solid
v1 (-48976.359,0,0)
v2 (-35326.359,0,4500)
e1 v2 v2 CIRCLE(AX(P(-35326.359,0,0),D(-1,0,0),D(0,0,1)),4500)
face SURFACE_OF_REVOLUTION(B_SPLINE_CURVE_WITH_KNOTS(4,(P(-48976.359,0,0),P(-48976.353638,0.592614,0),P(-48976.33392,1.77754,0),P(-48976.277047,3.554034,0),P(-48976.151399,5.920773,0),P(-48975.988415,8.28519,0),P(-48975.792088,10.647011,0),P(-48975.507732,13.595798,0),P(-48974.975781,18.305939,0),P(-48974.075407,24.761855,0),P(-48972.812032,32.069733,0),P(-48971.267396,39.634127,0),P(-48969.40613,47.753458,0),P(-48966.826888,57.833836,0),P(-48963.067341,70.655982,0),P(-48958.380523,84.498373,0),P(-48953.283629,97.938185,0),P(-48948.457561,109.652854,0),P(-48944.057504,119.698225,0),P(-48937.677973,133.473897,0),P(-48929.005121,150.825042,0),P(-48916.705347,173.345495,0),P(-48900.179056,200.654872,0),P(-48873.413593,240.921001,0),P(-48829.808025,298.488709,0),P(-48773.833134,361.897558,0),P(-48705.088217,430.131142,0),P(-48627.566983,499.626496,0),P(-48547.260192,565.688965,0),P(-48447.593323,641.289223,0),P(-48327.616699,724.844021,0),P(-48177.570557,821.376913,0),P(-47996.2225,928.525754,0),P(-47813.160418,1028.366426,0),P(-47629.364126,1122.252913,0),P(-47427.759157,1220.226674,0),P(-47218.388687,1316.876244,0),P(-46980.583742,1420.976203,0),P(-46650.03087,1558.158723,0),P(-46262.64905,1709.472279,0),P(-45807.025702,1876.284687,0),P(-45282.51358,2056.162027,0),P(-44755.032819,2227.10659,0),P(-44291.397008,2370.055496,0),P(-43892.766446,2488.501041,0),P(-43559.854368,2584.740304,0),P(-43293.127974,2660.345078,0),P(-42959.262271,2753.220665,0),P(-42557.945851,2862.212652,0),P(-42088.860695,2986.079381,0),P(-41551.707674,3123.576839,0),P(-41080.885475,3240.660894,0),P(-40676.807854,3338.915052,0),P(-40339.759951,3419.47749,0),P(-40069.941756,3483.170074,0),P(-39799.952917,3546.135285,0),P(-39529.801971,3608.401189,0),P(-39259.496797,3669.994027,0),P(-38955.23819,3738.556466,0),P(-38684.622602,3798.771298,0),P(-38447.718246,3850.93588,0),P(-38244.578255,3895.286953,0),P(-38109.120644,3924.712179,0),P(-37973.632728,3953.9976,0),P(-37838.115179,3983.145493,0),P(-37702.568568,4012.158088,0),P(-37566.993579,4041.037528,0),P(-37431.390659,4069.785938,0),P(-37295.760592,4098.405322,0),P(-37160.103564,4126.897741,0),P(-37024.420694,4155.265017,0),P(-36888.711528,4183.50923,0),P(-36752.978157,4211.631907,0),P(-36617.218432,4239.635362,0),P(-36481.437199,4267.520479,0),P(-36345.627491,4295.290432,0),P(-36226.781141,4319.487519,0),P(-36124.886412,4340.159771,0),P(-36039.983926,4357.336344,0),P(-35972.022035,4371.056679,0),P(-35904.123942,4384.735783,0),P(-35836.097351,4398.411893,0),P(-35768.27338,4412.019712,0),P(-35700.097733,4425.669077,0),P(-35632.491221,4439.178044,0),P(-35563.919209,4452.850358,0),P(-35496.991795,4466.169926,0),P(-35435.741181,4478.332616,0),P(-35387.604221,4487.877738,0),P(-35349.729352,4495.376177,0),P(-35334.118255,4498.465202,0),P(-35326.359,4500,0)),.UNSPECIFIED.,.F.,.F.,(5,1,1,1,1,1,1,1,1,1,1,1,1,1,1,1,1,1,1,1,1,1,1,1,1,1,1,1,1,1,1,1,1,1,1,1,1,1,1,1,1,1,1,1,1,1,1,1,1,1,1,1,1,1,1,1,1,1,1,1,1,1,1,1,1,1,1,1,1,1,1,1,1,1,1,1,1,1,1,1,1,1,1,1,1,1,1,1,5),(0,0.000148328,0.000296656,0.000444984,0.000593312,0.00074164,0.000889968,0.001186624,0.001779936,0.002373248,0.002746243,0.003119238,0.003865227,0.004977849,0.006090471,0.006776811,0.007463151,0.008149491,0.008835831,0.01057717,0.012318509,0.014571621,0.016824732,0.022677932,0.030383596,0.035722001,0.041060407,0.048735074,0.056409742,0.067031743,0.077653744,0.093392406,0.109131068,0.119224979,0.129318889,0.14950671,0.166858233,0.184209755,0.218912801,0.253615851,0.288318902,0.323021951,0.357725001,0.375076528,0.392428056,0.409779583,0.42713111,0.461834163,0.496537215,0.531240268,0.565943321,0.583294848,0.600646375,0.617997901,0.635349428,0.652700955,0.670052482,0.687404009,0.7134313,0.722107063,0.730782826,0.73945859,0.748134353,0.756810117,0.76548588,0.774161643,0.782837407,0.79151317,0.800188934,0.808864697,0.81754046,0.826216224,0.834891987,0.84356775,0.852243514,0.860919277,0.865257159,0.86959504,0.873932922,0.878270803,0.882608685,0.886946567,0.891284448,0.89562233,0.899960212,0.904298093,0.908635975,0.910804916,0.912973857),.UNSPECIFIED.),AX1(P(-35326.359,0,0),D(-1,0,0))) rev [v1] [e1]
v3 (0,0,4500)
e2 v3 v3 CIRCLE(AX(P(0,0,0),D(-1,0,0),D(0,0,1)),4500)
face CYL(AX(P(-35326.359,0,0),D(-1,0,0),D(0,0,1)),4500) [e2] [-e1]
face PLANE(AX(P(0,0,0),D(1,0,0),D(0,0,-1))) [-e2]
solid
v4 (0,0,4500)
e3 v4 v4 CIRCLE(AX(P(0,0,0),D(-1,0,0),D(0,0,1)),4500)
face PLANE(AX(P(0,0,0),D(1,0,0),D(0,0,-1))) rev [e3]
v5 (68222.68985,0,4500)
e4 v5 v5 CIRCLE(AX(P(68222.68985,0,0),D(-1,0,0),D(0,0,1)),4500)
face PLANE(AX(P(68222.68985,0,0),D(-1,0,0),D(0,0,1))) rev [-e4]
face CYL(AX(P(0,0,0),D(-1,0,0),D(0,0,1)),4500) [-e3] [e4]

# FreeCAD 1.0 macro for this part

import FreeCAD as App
import Part
import Sketcher

V = App.Vector

doc = App.newDocument("Part")
params = doc.addObject("Spreadsheet::Sheet", "Params")
for row, (alias, value) in enumerate([
    ("revolution_angle", "360 deg"),
    ("sketch2_height", "4500 mm"),
    ("revolution2_angle", "360 deg"),
], start=1):
    params.set(f"A{row}", alias)
    params.set(f"B{row}", "=" + value)
    params.setAlias(f"B{row}", alias)

body = doc.addObject("PartDesign::Body", "Body")

# Sketch on XY plane
sketch1 = body.newObject("Sketcher::SketchObject", "Sketch")
sketch1.AttachmentSupport = (doc.getObject("XY_Plane"), [""])
sketch1.MapMode = "FlatFace"
sketch1.addGeometry(Part.BSplineCurve([V(-48976.359, 0, 0), V(-48976.353638, 0.592614, 0), V(-48976.33392, 1.77754, 0), V(-48976.277047, 3.554034, 0), V(-48976.151399, 5.920773, 0), V(-48975.988415, 8.28519, 0), V(-48975.792088, 10.647011, 0), V(-48975.507732, 13.595798, 0), V(-48974.975781, 18.305939, 0), V(-48974.075407, 24.761855, 0), V(-48972.812032, 32.069733, 0), V(-48971.267396, 39.634127, 0), V(-48969.40613, 47.753458, 0), V(-48966.826888, 57.833836, 0), V(-48963.067341, 70.655982, 0), V(-48958.380523, 84.498373, 0), V(-48953.283629, 97.938185, 0), V(-48948.457561, 109.652854, 0), V(-48944.057504, 119.698225, 0), V(-48937.677973, 133.473897, 0), V(-48929.005121, 150.825042, 0), V(-48916.705347, 173.345495, 0), V(-48900.179056, 200.654872, 0), V(-48873.413593, 240.921001, 0), V(-48829.808025, 298.488709, 0), V(-48773.833134, 361.897558, 0), V(-48705.088217, 430.131142, 0), V(-48627.566983, 499.626496, 0), V(-48547.260192, 565.688965, 0), V(-48447.593323, 641.289223, 0), V(-48327.616699, 724.844021, 0), V(-48177.570557, 821.376913, 0), V(-47996.2225, 928.525754, 0), V(-47813.160418, 1028.366426, 0), V(-47629.364126, 1122.252913, 0), V(-47427.759157, 1220.226674, 0), V(-47218.388687, 1316.876244, 0), V(-46980.583742, 1420.976203, 0), V(-46650.03087, 1558.158723, 0), V(-46262.64905, 1709.472279, 0), V(-45807.025702, 1876.284687, 0), V(-45282.51358, 2056.162027, 0), V(-44755.032819, 2227.10659, 0), V(-44291.397008, 2370.055496, 0), V(-43892.766446, 2488.501041, 0), V(-43559.854368, 2584.740304, 0), V(-43293.127974, 2660.345078, 0), V(-42959.262271, 2753.220665, 0), V(-42557.945851, 2862.212652, 0), V(-42088.860695, 2986.079381, 0), V(-41551.707674, 3123.576839, 0), V(-41080.885475, 3240.660894, 0), V(-40676.807854, 3338.915052, 0), V(-40339.759951, 3419.47749, 0), V(-40069.941756, 3483.170074, 0), V(-39799.952917, 3546.135285, 0), V(-39529.801971, 3608.401189, 0), V(-39259.496797, 3669.994027, 0), V(-38955.23819, 3738.556466, 0), V(-38684.622602, 3798.771298, 0), V(-38447.718246, 3850.93588, 0), V(-38244.578255, 3895.286953, 0), V(-38109.120644, 3924.712179, 0), V(-37973.632728, 3953.9976, 0), V(-37838.115179, 3983.145493, 0), V(-37702.568568, 4012.158088, 0), V(-37566.993579, 4041.037528, 0), V(-37431.390659, 4069.785938, 0), V(-37295.760592, 4098.405322, 0), V(-37160.103564, 4126.897741, 0), V(-37024.420694, 4155.265017, 0), V(-36888.711528, 4183.50923, 0), V(-36752.978157, 4211.631907, 0), V(-36617.218432, 4239.635362, 0), V(-36481.437199, 4267.520479, 0), V(-36345.627491, 4295.290432, 0), V(-36226.781141, 4319.487519, 0), V(-36124.886412, 4340.159771, 0), V(-36039.983926, 4357.336344, 0), V(-35972.022035, 4371.056679, 0), V(-35904.123942, 4384.735783, 0), V(-35836.097351, 4398.411893, 0), V(-35768.27338, 4412.019712, 0), V(-35700.097733, 4425.669077, 0), V(-35632.491221, 4439.178044, 0), V(-35563.919209, 4452.850358, 0), V(-35496.991795, 4466.169926, 0), V(-35435.741181, 4478.332616, 0), V(-35387.604221, 4487.877738, 0), V(-35349.729352, 4495.376177, 0), V(-35334.118255, 4498.465202, 0), V(-35326.359, 4500, 0)], [5, 1, 1, 1, 1, 1, 1, 1, 1, 1, 1, 1, 1, 1, 1, 1, 1, 1, 1, 1, 1, 1, 1, 1, 1, 1, 1, 1, 1, 1, 1, 1, 1, 1, 1, 1, 1, 1, 1, 1, 1, 1, 1, 1, 1, 1, 1, 1, 1, 1, 1, 1, 1, 1, 1, 1, 1, 1, 1, 1, 1, 1, 1, 1, 1, 1, 1, 1, 1, 1, 1, 1, 1, 1, 1, 1, 1, 1, 1, 1, 1, 1, 1, 1, 1, 1, 1, 1, 5], [0, 0.000148328, 0.000296656, 0.000444984, 0.000593312, 0.00074164, 0.000889968, 0.001186624, 0.001779936, 0.002373248, 0.002746243, 0.003119238, 0.003865227, 0.004977849, 0.006090471, 0.006776811, 0.007463151, 0.008149491, 0.008835831, 0.01057717, 0.012318509, 0.014571621, 0.016824732, 0.022677932, 0.030383596, 0.035722001, 0.041060407, 0.048735074, 0.056409742, 0.067031743, 0.077653744, 0.093392406, 0.109131068, 0.119224979, 0.129318889, 0.14950671, 0.166858233, 0.184209755, 0.218912801, 0.253615851, 0.288318902, 0.323021951, 0.357725001, 0.375076528, 0.392428056, 0.409779583, 0.42713111, 0.461834163, 0.496537215, 0.531240268, 0.565943321, 0.583294848, 0.600646375, 0.617997901, 0.635349428, 0.652700955, 0.670052482, 0.687404009, 0.7134313, 0.722107063, 0.730782826, 0.73945859, 0.748134353, 0.756810117, 0.76548588, 0.774161643, 0.782837407, 0.79151317, 0.800188934, 0.808864697, 0.81754046, 0.826216224, 0.834891987, 0.84356775, 0.852243514, 0.860919277, 0.865257159, 0.86959504, 0.873932922, 0.878270803, 0.882608685, 0.886946567, 0.891284448, 0.89562233, 0.899960212, 0.904298093, 0.908635975, 0.910804916, 0.912973857], False, 4, [1, 1, 1, 1, 1, 1, 1, 1, 1, 1, 1, 1, 1, 1, 1, 1, 1, 1, 1, 1, 1, 1, 1, 1, 1, 1, 1, 1, 1, 1, 1, 1, 1, 1, 1, 1, 1, 1, 1, 1, 1, 1, 1, 1, 1, 1, 1, 1, 1, 1, 1, 1, 1, 1, 1, 1, 1, 1, 1, 1, 1, 1, 1, 1, 1, 1, 1, 1, 1, 1, 1, 1, 1, 1, 1, 1, 1, 1, 1, 1, 1, 1, 1, 1, 1, 1, 1, 1, 1, 1, 1, 1], False), False)
sketch1.addGeometry(Part.LineSegment(V(-48976.359, 0, 0), V(0, 0, 0)), False)
sketch1.addGeometry(Part.LineSegment(V(0, 0, 0), V(0, 4500, 0)), False)
sketch1.addGeometry(Part.LineSegment(V(0, 4500, 0), V(-35326.359, 4500, 0)), False)
sketch1.addConstraint(Sketcher.Constraint("Block", 0))
sketch1.addConstraint(Sketcher.Constraint("Coincident", 0, 1, 1, 1))
sketch1.addConstraint(Sketcher.Constraint("Coincident", 1, 2, 2, 1))
sketch1.addConstraint(Sketcher.Constraint("Coincident", 2, 2, 3, 1))
sketch1.addConstraint(Sketcher.Constraint("Coincident", 3, 2, 0, 2))
sketch1.addConstraint(Sketcher.Constraint("Horizontal", 1))
sketch1.addConstraint(Sketcher.Constraint("Vertical", 2))
sketch1.addConstraint(Sketcher.Constraint("Horizontal", 3))
sketch1.addConstraint(Sketcher.Constraint("PointOnObject", 2, 2, -2))
revolution = body.newObject("PartDesign::Revolution", "Revolution")
revolution.Profile = sketch1
revolution.ReferenceAxis = (sketch1, ["H_Axis"])
revolution.setExpression("Angle", "Params.revolution_angle")
body2 = doc.addObject("PartDesign::Body", "Body001")

# Sketch on XY plane
sketch2 = body2.newObject("Sketcher::SketchObject", "Sketch001")
sketch2.AttachmentSupport = (doc.getObject("XY_Plane001"), [""])
sketch2.MapMode = "FlatFace"
sketch2.addGeometry(Part.LineSegment(V(0, 4500, 0), V(0, 0, 0)), False)
sketch2.addGeometry(Part.LineSegment(V(0, 0, 0), V(68223, 0, 0)), False)
sketch2.addGeometry(Part.LineSegment(V(68223, 0, 0), V(68223, 4500, 0)), False)
sketch2.addGeometry(Part.LineSegment(V(68223, 4500, 0), V(0, 4500, 0)), False)
sketch2.addConstraint(Sketcher.Constraint("Coincident", 0, 2, 1, 1))
sketch2.addConstraint(Sketcher.Constraint("Coincident", 1, 2, 2, 1))
sketch2.addConstraint(Sketcher.Constraint("Coincident", 2, 2, 3, 1))
sketch2.addConstraint(Sketcher.Constraint("Coincident", 3, 2, 0, 1))
sketch2.addConstraint(Sketcher.Constraint("Vertical", 0))
sketch2.addConstraint(Sketcher.Constraint("Horizontal", 1))
sketch2.addConstraint(Sketcher.Constraint("Vertical", 2))
sketch2.addConstraint(Sketcher.Constraint("Horizontal", 3))
sketch2.addConstraint(Sketcher.Constraint("Coincident", 0, 2, -1, 1))
sketch2.addConstraint(Sketcher.Constraint("DistanceY", 0, 2, 0, 1, 4500.0))
sketch2.addConstraint(Sketcher.Constraint("DistanceX", 1, 1, 1, 2, 68222.68985))
sketch2.setExpression("Constraints[9]", "Params.sketch2_height")
revolution2 = body2.newObject("PartDesign::Revolution", "Revolution001")
revolution2.Profile = sketch2
revolution2.ReferenceAxis = (sketch2, ["H_Axis"])
revolution2.setExpression("Angle", "Params.revolution2_angle")

doc.recompute()
